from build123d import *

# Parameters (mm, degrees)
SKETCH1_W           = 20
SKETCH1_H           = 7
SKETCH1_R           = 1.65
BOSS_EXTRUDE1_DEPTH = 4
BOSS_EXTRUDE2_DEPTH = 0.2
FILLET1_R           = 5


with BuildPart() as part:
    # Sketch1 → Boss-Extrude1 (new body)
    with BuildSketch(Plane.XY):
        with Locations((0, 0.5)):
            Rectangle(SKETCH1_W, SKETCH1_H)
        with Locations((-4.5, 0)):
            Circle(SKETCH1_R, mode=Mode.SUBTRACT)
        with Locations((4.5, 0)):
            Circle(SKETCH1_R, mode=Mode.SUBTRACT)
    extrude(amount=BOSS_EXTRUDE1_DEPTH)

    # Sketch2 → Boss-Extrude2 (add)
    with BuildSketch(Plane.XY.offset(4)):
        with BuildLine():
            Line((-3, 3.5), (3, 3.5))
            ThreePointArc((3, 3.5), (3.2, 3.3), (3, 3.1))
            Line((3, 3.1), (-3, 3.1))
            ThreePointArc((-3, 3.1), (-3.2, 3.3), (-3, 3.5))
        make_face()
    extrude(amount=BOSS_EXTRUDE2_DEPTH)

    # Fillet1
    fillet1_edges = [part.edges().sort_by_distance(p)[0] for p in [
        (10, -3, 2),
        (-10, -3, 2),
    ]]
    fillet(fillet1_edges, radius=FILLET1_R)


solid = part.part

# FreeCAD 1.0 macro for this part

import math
import FreeCAD as App
import Part
import Sketcher
Q = App.Units.Quantity


def edges_at(feature, points):
    """Names of the edges that pass closest to the given points."""
    edges = feature.Shape.Edges
    near = lambda p: min(range(len(edges)), key=lambda i: edges[i].distToShape(Part.Vertex(*p))[0])
    return sorted({f"Edge{near(p) + 1}" for p in points})

doc = App.newDocument("Part")
body = doc.addObject("PartDesign::Body", "Body")

# Sketch on XY plane
sketch1 = doc.addObject("Sketcher::SketchObject", "Sketch")
body.addObject(sketch1)
sketch1.AttachmentSupport = (doc.XY_Plane, [""])
sketch1.MapMode = "FlatFace"
sketch1.addGeometry([
    Part.LineSegment(App.Vector(-10, 4, 0), App.Vector(-10, -3, 0)),  # 0
    Part.LineSegment(App.Vector(-10, -3, 0), App.Vector(10, -3, 0)),  # 1
    Part.LineSegment(App.Vector(10, -3, 0), App.Vector(10, 4, 0)),  # 2
    Part.LineSegment(App.Vector(10, 4, 0), App.Vector(-10, 4, 0)),  # 3
    Part.Circle(App.Vector(-4.5, 0, 0), App.Vector(0, 0, 1), 1.6),  # 4
    Part.Circle(App.Vector(4.5, 0, 0), App.Vector(0, 0, 1), 1.6),  # 5
], False)
sketch1.addConstraint([
    Sketcher.Constraint("Coincident", 0, 2, 1, 1),
    Sketcher.Constraint("Coincident", 1, 2, 2, 1),
    Sketcher.Constraint("Coincident", 2, 2, 3, 1),
    Sketcher.Constraint("Coincident", 3, 2, 0, 1),
    Sketcher.Constraint("Vertical", 0),
    Sketcher.Constraint("Horizontal", 1),
    Sketcher.Constraint("Vertical", 2),
    Sketcher.Constraint("Horizontal", 3),
    Sketcher.Constraint("Equal", 4, 5),
    Sketcher.Constraint("Symmetric", 4, 3, 5, 3, -1, 1),
    Sketcher.Constraint("PointOnObject", 4, 3, -1),
    Sketcher.Constraint("Diameter", 4, Q("3.3 mm")),
    Sketcher.Constraint("DistanceX", 1, 1, 1, 2, Q("20 mm")),
    Sketcher.Constraint("DistanceY", 0, 2, 0, 1, Q("7 mm")),
    Sketcher.Constraint("DistanceX", 0, 2, -1, 1, Q("10 mm")),
    Sketcher.Constraint("DistanceY", 0, 2, -1, 1, Q("3 mm")),
    Sketcher.Constraint("DistanceX", 4, 3, 5, 3, Q("9 mm")),
])
pad1 = doc.addObject("PartDesign::Pad", "Pad")
body.addObject(pad1)
pad1.Profile = sketch1
pad1.Length = 4

# Sketch on XY plane
sketch2 = doc.addObject("Sketcher::SketchObject", "Sketch001")
body.addObject(sketch2)
sketch2.AttachmentSupport = (doc.XY_Plane, [""])
sketch2.MapMode = "FlatFace"
sketch2.AttachmentOffset = App.Placement(App.Vector(0, 0, 4), App.Rotation())
sketch2.addGeometry([
    Part.LineSegment(App.Vector(3, 3.5, 0), App.Vector(-3, 3.5, 0)),
    Part.ArcOfCircle(Part.Circle(App.Vector(-3, 3.3, 0), App.Vector(0, 0, 1), 0.2), math.radians(90), math.radians(270)),
    Part.LineSegment(App.Vector(-3, 3.1, 0), App.Vector(3, 3.1, 0)),
    Part.ArcOfCircle(Part.Circle(App.Vector(3, 3.3, 0), App.Vector(0, 0, 1), 0.2), math.radians(-90), math.radians(90)),
], False)
sketch2.addConstraint([
    Sketcher.Constraint("Tangent", 0, 2, 1, 1),
    Sketcher.Constraint("Tangent", 1, 2, 2, 1),
    Sketcher.Constraint("Tangent", 2, 2, 3, 1),
    Sketcher.Constraint("Tangent", 3, 2, 0, 1),
    Sketcher.Constraint("Horizontal", 0),
    Sketcher.Constraint("Horizontal", 2),
    Sketcher.Constraint("Radius", 1, Q("0.2 mm")),
    Sketcher.Constraint("DistanceX", 0, 2, 0, 1, Q("6 mm")),
    Sketcher.Constraint("DistanceX", 1, 3, -1, 1, Q("3 mm")),
    Sketcher.Constraint("DistanceY", -1, 1, 1, 3, Q("3.3 mm")),
])
pad2 = doc.addObject("PartDesign::Pad", "Pad001")
body.addObject(pad2)
pad2.Profile = sketch2
pad2.Length = 0.2
doc.recompute()

fillet = doc.addObject("PartDesign::Fillet", "Fillet")
body.addObject(fillet)
fillet.Base = (pad2, edges_at(pad2, [(10, -3, 2), (-10, -3, 2)]))
fillet.Radius = 5

doc.recompute()
